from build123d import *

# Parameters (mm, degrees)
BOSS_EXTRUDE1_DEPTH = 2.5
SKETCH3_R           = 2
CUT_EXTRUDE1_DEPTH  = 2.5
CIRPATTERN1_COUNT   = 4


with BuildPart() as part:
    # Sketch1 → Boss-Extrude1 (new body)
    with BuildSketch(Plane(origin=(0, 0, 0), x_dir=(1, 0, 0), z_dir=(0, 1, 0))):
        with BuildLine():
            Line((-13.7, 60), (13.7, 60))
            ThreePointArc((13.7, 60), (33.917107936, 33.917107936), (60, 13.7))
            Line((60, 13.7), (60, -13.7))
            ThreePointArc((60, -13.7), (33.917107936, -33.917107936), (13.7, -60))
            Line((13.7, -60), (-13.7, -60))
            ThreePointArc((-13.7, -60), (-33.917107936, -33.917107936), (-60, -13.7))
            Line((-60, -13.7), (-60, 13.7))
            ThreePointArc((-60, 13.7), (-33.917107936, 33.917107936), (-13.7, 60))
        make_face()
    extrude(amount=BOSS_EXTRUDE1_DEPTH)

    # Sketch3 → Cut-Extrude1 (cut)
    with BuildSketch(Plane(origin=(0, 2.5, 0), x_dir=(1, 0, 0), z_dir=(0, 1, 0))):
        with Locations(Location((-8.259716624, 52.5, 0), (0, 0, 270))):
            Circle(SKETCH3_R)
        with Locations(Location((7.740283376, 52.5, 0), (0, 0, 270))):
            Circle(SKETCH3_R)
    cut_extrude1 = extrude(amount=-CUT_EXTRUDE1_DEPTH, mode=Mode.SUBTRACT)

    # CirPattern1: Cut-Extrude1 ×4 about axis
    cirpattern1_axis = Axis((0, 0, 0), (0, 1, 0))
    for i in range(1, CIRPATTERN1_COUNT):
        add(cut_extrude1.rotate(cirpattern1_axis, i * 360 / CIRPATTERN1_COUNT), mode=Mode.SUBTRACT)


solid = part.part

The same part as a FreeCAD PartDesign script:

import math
import FreeCAD as App
import Part
import Sketcher
Q = App.Units.Quantity

doc = App.newDocument("Part")
body = doc.addObject("PartDesign::Body", "Body")

# Sketch on XZ plane
sketch1 = body.newObject("Sketcher::SketchObject", "Sketch")
sketch1.AttachmentSupport = (doc.getObject("XZ_Plane"), [""])
sketch1.MapMode = "FlatFace"
sketch1.addGeometry(Part.LineSegment(App.Vector(13.7, -60, 0), App.Vector(-13.7, -60, 0)), False)
sketch1.addGeometry(Part.ArcOfCircle(Part.Circle(App.Vector(-126.747724, -126.747724, 0), App.Vector(0, 0, 1), 131.282317), math.radians(30.559236), math.radians(59.440764)), False)
sketch1.addGeometry(Part.LineSegment(App.Vector(-60, -13.7, 0), App.Vector(-60, 13.7, 0)), False)
sketch1.addGeometry(Part.ArcOfCircle(Part.Circle(App.Vector(-126.747724, 126.747724, 0), App.Vector(0, 0, 1), 131.282317), math.radians(-59.440764), math.radians(-30.559236)), False)
sketch1.addGeometry(Part.LineSegment(App.Vector(-13.7, 60, 0), App.Vector(13.7, 60, 0)), False)
sketch1.addGeometry(Part.ArcOfCircle(Part.Circle(App.Vector(126.747724, 126.747724, 0), App.Vector(0, 0, 1), 131.282317), math.radians(-149.440764), math.radians(-120.559236)), False)
sketch1.addGeometry(Part.LineSegment(App.Vector(60, 13.7, 0), App.Vector(60, -13.7, 0)), False)
sketch1.addGeometry(Part.ArcOfCircle(Part.Circle(App.Vector(126.747724, -126.747724, 0), App.Vector(0, 0, 1), 131.282317), math.radians(120.559236), math.radians(149.440764)), False)
sketch1.addConstraint(Sketcher.Constraint("Coincident", 0, 2, 1, 1))
sketch1.addConstraint(Sketcher.Constraint("Coincident", 1, 2, 2, 1))
sketch1.addConstraint(Sketcher.Constraint("Coincident", 2, 2, 3, 1))
sketch1.addConstraint(Sketcher.Constraint("Coincident", 3, 2, 4, 1))
sketch1.addConstraint(Sketcher.Constraint("Coincident", 4, 2, 5, 1))
sketch1.addConstraint(Sketcher.Constraint("Coincident", 5, 2, 6, 1))
sketch1.addConstraint(Sketcher.Constraint("Coincident", 6, 2, 7, 1))
sketch1.addConstraint(Sketcher.Constraint("Coincident", 7, 2, 0, 1))
sketch1.addConstraint(Sketcher.Constraint("Horizontal", 0))
sketch1.addConstraint(Sketcher.Constraint("Vertical", 2))
sketch1.addConstraint(Sketcher.Constraint("Horizontal", 4))
sketch1.addConstraint(Sketcher.Constraint("Vertical", 6))
sketch1.addConstraint(Sketcher.Constraint("Equal", 1, 3))
sketch1.addConstraint(Sketcher.Constraint("Equal", 3, 5))
sketch1.addConstraint(Sketcher.Constraint("Equal", 5, 7))
sketch1.addConstraint(Sketcher.Constraint("Symmetric", 1, 3, 5, 3, -1, 1))
sketch1.addConstraint(Sketcher.Constraint("Symmetric", 3, 3, 7, 3, -1, 1))
sketch1.addConstraint(Sketcher.Constraint("Symmetric", 3, 3, 5, 3, -2))
sketch1.addConstraint(Sketcher.Constraint("Horizontal", 2, 2, 5, 2))
sketch1.addConstraint(Sketcher.Constraint("Vertical", 0, 2, 3, 2))
sketch1.addConstraint(Sketcher.Constraint("Equal", 4, 2))
sketch1.addConstraint(Sketcher.Constraint("DistanceX", 0, 2, 0, 1, Q("27.4 mm")))
sketch1.addConstraint(Sketcher.Constraint("DistanceY", 0, 2, -1, 1, Q("60 mm")))
sketch1.addConstraint(Sketcher.Constraint("DistanceX", 1, 2, -1, 1, Q("60 mm")))
sketch1.addConstraint(Sketcher.Constraint("Radius", 1, Q("131.282317 mm")))
pad1 = body.newObject("PartDesign::Pad", "Pad")
pad1.Profile = sketch1
pad1.Length = 2.5
pad1.Reversed = True

# Sketch on XZ plane
sketch2 = body.newObject("Sketcher::SketchObject", "Sketch001")
sketch2.AttachmentSupport = (doc.getObject("XZ_Plane"), [""])
sketch2.MapMode = "FlatFace"
sketch2.AttachmentOffset = App.Placement(App.Vector(0, 0, -2.5), App.Rotation())
sketch2.addGeometry(Part.Circle(App.Vector(-8.259717, -52.5, 0), App.Vector(0, 0, 1), 2), False)
sketch2.addGeometry(Part.Circle(App.Vector(7.740283, -52.5, 0), App.Vector(0, 0, 1), 2), False)
sketch2.addConstraint(Sketcher.Constraint("Equal", 0, 1))
sketch2.addConstraint(Sketcher.Constraint("Horizontal", 0, 3, 1, 3))
sketch2.addConstraint(Sketcher.Constraint("Diameter", 0, Q("4 mm")))
sketch2.addConstraint(Sketcher.Constraint("DistanceX", 0, 3, 1, 3, Q("16 mm")))
sketch2.addConstraint(Sketcher.Constraint("DistanceY", 0, 3, -1, 1, Q("52.5 mm")))
sketch2.addConstraint(Sketcher.Constraint("DistanceX", 0, 3, -1, 1, Q("8.259717 mm")))
pocket1 = body.newObject("PartDesign::Pocket", "Pocket")
pocket1.Profile = sketch2
pocket1.Length = 2.5
pocket1.Reversed = True
doc.recompute()

polarpattern = body.newObject("PartDesign::PolarPattern", "PolarPattern")
polarpattern.Originals = [pocket1]
polarpattern.Axis = (doc.getObject("Y_Axis"), [""])
polarpattern.Angle = 360
polarpattern.Occurrences = 4
body.Tip = polarpattern

doc.recompute()
